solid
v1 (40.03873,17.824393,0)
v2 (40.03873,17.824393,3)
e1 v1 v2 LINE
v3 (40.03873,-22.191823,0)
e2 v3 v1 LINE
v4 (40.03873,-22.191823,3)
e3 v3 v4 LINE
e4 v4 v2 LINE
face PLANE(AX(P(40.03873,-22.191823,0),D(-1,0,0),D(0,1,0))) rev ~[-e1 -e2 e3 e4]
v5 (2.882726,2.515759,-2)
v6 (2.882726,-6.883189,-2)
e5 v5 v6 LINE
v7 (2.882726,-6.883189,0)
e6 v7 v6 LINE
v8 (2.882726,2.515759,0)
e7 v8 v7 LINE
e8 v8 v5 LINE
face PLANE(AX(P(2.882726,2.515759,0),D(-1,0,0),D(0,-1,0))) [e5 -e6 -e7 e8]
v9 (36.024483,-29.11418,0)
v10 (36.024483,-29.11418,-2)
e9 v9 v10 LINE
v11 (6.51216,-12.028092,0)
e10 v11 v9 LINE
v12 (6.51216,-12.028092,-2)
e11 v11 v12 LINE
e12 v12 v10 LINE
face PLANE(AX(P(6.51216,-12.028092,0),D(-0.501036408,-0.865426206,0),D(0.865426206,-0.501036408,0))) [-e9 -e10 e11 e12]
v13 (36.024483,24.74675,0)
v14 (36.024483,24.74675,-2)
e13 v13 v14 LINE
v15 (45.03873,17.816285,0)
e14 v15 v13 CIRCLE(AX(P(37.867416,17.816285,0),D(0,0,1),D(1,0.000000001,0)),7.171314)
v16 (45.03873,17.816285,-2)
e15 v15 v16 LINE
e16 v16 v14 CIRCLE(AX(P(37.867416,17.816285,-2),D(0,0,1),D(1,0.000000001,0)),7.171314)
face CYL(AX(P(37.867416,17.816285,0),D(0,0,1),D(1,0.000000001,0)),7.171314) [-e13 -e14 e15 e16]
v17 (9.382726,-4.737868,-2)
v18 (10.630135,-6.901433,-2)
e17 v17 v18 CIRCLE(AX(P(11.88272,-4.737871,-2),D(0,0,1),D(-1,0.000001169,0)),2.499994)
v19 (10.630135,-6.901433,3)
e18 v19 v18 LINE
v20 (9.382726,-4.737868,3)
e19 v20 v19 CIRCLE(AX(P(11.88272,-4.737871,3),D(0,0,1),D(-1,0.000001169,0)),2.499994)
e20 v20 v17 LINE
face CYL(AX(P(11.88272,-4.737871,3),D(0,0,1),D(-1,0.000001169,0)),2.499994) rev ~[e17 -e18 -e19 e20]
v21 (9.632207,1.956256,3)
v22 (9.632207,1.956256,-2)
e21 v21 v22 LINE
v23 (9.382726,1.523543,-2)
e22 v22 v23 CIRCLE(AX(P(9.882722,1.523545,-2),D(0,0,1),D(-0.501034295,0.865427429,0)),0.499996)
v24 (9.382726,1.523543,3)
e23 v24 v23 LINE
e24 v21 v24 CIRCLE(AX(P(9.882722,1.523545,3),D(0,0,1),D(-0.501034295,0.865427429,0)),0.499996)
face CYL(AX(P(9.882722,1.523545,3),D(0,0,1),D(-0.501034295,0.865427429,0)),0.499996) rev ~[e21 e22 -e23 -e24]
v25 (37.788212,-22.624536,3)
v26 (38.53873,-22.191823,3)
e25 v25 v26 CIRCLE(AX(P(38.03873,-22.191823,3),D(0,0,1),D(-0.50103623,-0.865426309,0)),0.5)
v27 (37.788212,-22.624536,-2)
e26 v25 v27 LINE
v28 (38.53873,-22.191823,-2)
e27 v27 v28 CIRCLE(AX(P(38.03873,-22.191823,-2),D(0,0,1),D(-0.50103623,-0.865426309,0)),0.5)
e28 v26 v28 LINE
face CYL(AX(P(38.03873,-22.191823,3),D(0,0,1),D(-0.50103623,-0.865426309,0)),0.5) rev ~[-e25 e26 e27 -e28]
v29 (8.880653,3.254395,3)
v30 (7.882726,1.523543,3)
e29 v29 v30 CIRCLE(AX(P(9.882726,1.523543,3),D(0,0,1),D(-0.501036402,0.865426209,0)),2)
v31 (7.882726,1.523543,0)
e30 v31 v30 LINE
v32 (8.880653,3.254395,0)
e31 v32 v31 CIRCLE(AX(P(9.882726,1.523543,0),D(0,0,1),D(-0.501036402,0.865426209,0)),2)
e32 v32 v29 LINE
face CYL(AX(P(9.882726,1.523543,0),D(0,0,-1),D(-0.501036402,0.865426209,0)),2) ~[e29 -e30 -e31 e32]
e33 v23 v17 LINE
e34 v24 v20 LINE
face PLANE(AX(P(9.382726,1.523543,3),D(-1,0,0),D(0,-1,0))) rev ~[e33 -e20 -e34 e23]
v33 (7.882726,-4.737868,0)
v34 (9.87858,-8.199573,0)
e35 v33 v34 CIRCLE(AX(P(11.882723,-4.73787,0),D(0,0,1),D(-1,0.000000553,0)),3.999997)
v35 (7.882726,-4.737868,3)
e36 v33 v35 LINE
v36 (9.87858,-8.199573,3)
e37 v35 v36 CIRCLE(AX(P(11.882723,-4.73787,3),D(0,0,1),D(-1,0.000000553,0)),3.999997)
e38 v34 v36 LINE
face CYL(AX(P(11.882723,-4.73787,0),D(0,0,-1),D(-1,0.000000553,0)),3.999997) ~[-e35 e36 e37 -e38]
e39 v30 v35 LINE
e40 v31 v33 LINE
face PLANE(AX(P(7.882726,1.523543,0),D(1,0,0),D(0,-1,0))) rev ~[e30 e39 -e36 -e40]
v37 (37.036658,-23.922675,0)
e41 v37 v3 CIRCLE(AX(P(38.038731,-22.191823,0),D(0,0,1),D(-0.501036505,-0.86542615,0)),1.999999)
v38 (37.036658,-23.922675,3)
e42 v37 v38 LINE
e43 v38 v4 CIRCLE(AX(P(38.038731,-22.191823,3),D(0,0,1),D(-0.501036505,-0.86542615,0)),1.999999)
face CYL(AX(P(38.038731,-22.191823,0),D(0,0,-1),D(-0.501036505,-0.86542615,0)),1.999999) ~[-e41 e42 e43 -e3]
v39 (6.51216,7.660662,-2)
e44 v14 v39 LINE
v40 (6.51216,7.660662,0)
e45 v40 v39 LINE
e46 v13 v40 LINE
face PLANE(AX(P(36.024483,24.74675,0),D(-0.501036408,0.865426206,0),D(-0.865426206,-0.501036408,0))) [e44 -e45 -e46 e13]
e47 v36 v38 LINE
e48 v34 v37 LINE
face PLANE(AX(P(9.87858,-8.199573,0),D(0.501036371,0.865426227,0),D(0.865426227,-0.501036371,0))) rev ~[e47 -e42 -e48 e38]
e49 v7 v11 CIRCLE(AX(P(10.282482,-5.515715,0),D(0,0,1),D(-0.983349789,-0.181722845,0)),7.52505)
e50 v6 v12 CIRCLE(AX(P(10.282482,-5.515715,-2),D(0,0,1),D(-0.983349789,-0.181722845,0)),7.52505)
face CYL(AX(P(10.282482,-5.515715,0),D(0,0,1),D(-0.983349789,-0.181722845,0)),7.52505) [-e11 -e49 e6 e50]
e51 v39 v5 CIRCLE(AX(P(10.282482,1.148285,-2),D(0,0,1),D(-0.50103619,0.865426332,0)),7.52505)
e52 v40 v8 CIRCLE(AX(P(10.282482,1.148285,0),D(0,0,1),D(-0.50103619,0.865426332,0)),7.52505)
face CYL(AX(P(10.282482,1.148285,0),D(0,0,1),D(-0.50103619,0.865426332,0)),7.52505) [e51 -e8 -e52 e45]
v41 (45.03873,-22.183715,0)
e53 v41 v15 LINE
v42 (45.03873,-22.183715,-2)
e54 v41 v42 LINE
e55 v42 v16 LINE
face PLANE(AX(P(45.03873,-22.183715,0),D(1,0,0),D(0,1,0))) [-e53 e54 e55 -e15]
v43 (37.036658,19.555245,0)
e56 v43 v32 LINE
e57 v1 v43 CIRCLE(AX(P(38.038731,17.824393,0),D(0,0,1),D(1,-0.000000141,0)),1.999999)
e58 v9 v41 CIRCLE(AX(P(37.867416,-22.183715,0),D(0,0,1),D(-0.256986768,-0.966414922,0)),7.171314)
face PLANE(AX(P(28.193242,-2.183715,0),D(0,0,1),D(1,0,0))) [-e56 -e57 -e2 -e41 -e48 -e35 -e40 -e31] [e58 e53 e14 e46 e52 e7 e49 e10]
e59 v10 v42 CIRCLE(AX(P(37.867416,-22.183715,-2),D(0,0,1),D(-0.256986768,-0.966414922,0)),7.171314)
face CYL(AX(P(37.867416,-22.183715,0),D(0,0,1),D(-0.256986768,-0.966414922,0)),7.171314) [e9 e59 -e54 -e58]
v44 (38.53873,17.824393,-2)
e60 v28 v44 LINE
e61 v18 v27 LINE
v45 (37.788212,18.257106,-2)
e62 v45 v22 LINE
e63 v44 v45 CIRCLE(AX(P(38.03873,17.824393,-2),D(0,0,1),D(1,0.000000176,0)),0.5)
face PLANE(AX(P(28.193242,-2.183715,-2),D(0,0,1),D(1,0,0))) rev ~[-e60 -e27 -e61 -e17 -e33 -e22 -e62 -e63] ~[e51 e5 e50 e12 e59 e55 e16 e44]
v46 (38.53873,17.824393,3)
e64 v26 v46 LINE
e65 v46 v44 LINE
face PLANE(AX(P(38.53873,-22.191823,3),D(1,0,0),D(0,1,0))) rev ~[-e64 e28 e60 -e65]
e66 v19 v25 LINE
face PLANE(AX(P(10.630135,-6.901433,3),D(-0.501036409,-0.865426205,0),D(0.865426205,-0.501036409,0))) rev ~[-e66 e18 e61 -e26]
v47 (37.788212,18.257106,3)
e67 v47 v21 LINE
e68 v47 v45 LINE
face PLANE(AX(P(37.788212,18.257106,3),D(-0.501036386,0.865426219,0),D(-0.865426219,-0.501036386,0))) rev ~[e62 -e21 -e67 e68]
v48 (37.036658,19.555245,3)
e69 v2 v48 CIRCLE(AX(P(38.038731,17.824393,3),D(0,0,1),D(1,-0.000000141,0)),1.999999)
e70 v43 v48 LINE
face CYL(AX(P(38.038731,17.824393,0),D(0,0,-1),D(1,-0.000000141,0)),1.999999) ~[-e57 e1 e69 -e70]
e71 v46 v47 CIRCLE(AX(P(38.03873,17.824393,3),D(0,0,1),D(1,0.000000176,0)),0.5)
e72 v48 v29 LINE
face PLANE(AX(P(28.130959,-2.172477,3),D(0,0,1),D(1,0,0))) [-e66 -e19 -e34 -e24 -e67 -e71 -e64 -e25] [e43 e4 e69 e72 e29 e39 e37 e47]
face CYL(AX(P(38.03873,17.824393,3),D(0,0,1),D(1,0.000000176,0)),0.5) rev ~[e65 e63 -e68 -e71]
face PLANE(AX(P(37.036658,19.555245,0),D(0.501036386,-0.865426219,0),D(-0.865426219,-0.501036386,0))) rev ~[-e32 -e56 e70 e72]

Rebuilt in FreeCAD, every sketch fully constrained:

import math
import FreeCAD as App
import Part
import Sketcher
from FreeCAD import Vector

doc = App.newDocument("Part")
body = doc.addObject("PartDesign::Body", "Body")

sketch1 = body.newObject("Sketcher::SketchObject", "Sketch")
sketch1.AttachmentSupport = (doc.getObject("XY_Plane"), [""])
sketch1.MapMode = "FlatFace"
sketch1.addGeometry([
    Part.ArcOfCircle(Part.Circle(Vector(11.882723, -4.73787, 0), Vector(0, 0, 1), 3.999997), math.radians(179.999968), math.radians(239.931428)),
    Part.LineSegment(Vector(9.87858, -8.199573, 0), Vector(37.036658, -23.922675, 0)),
    Part.ArcOfCircle(Part.Circle(Vector(38.038731, -22.191823, 0), Vector(0, 0, 1), 1.999999), math.radians(-120.068598), math.radians(0.000008)),
    Part.LineSegment(Vector(40.03873, -22.191823, 0), Vector(40.03873, 17.824393, 0)),
    Part.ArcOfCircle(Part.Circle(Vector(38.038731, 17.824393, 0), Vector(0, 0, 1), 1.999999), math.radians(-0.000008), math.radians(120.068598)),
    Part.LineSegment(Vector(37.036658, 19.555245, 0), Vector(8.880653, 3.254395, 0)),
    Part.ArcOfCircle(Part.Circle(Vector(9.882726, 1.523543, 0), Vector(0, 0, 1), 2), math.radians(120.068592), math.radians(179.999998)),
    Part.LineSegment(Vector(7.882726, 1.523543, 0), Vector(7.882726, -4.737868, 0)),
], False)
sketch1.addConstraint([
    Sketcher.Constraint("Coincident", 0, 2, 1, 1),
    Sketcher.Constraint("Coincident", 1, 2, 2, 1),
    Sketcher.Constraint("Coincident", 2, 2, 3, 1),
    Sketcher.Constraint("Coincident", 3, 2, 4, 1),
    Sketcher.Constraint("Coincident", 4, 2, 5, 1),
    Sketcher.Constraint("Coincident", 5, 2, 6, 1),
    Sketcher.Constraint("Coincident", 6, 2, 7, 1),
    Sketcher.Constraint("Coincident", 7, 2, 0, 1),
    Sketcher.Constraint("Vertical", 3),
    Sketcher.Constraint("Vertical", 7),
    Sketcher.Constraint("Radius", 2, 1.999999),
    Sketcher.Constraint("Radius", 4, 1.999999),
    Sketcher.Constraint("Radius", 6, 2.0),
    Sketcher.Constraint("DistanceY", 5, 2, 4, 3, 14.569998),
    Sketcher.Constraint("Radius", 0, 3.999997),
    Sketcher.Constraint("DistanceY", 7, 2, 7, 1, 6.261411),
    Sketcher.Constraint("DistanceY", 6, 2, 4, 2, 18.031702),
    Sketcher.Constraint("Distance", 1, 31.381159),
    Sketcher.Constraint("DistanceY", 3, 1, 3, 2, 40.016216),
    Sketcher.Constraint("DistanceY", 0, 3, -1, 1, 4.73787),
    Sketcher.Constraint("DistanceX", -1, 1, 2, 3, 38.038731),
    Sketcher.Constraint("DistanceX", -1, 1, 0, 2, 9.87858),
    Sketcher.Constraint("DistanceX", -1, 1, 1, 2, 37.036658),
    Sketcher.Constraint("DistanceX", -1, 1, 4, 2, 37.036658),
    Sketcher.Constraint("DistanceY", 6, 3, 4, 3, 16.30085),
    Sketcher.Constraint("DistanceY", 1, 2, 4, 3, 41.747068),
    Sketcher.Constraint("DistanceY", 2, 2, 0, 2, 13.99225),
    Sketcher.Constraint("Distance", 5, 32.534264),
])
pad1 = body.newObject("PartDesign::Pad", "Pad")
pad1.Profile = sketch1
pad1.Length = 3

sketch2 = body.newObject("Sketcher::SketchObject", "Sketch001")
sketch2.AttachmentSupport = (doc.getObject("XY_Plane"), [""])
sketch2.MapMode = "FlatFace"
sketch2.addGeometry([
    Part.LineSegment(Vector(7, -12, 0), Vector(36, -29, 0)),
    Part.ArcOfCircle(Part.Circle(Vector(38, -22, 0), Vector(0, 0, 1), 7), math.radians(-105), math.radians(0)),
    Part.LineSegment(Vector(45, -22, 0), Vector(45, 18, 0)),
    Part.ArcOfCircle(Part.Circle(Vector(38, 18, 0), Vector(0, 0, 1), 7), math.radians(0), math.radians(105)),
    Part.LineSegment(Vector(36, 25, 0), Vector(7, 8, 0)),
    Part.ArcOfCircle(Part.Circle(Vector(10, 1, 0), Vector(0, 0, 1), 8), math.radians(120), math.radians(170)),
    Part.LineSegment(Vector(3, 3, 0), Vector(3, -7, 0)),
    Part.ArcOfCircle(Part.Circle(Vector(10, -6, 0), Vector(0, 0, 1), 8), math.radians(-170), math.radians(-120)),
], False)
sketch2.addConstraint([
    Sketcher.Constraint("Coincident", 0, 2, 1, 1),
    Sketcher.Constraint("Tangent", 1, 2, 2, 1),
    Sketcher.Constraint("Tangent", 2, 2, 3, 1),
    Sketcher.Constraint("Coincident", 3, 2, 4, 1),
    Sketcher.Constraint("Tangent", 4, 2, 5, 1),
    Sketcher.Constraint("Coincident", 5, 2, 6, 1),
    Sketcher.Constraint("Coincident", 6, 2, 7, 1),
    Sketcher.Constraint("Tangent", 7, 2, 0, 1),
    Sketcher.Constraint("Vertical", 2),
    Sketcher.Constraint("Vertical", 6),
    Sketcher.Constraint("Equal", 1, 3),
    Sketcher.Constraint("Equal", 5, 7),
    Sketcher.Constraint("Vertical", 5, 3, 7, 3),
    Sketcher.Constraint("Vertical", 0, 2, 3, 2),
    Sketcher.Constraint("Vertical", 4, 2, 7, 2),
    Sketcher.Constraint("DistanceY", 2, 1, 2, 2, 40.0),
    Sketcher.Constraint("Radius", 5, 7.52505),
    Sketcher.Constraint("Radius", 1, 7.171314),
    Sketcher.Constraint("DistanceY", 5, 3, 3, 3, 16.668),
    Sketcher.Constraint("DistanceX", 7, 3, 0, 2, 25.742001),
    Sketcher.Constraint("DistanceY", 6, 2, 6, 1, 9.398948),
    Sketcher.Constraint("Distance", 0, 34.10149),
    Sketcher.Constraint("DistanceY", 0, 2, -1, 1, 29.11418),
    Sketcher.Constraint("DistanceX", -1, 1, 1, 2, 45.03873),
])
pad2 = body.newObject("PartDesign::Pad", "Pad001")
pad2.Profile = sketch2
pad2.Length = 2
pad2.Reversed = True

sketch3 = body.newObject("Sketcher::SketchObject", "Sketch002")
sketch3.AttachmentSupport = (doc.getObject("XY_Plane"), [""])
sketch3.MapMode = "FlatFace"
sketch3.AttachmentOffset = App.Placement(Vector(0, 0, 3), App.Rotation())
sketch3.addGeometry([
    Part.ArcOfCircle(Part.Circle(Vector(9.88, 1.52, 0), Vector(0, 0, 1), 0.5), math.radians(120), math.radians(180)),
    Part.LineSegment(Vector(9.38, 1.52, 0), Vector(9.38, -4.74, 0)),
    Part.ArcOfCircle(Part.Circle(Vector(11.88, -4.74, 0), Vector(0, 0, 1), 2.5), math.radians(180), math.radians(240)),
    Part.LineSegment(Vector(10.63, -6.9, 0), Vector(37.79, -22.62, 0)),
    Part.ArcOfCircle(Part.Circle(Vector(38.04, -22.19, 0), Vector(0, 0, 1), 0.5), math.radians(-120), math.radians(0)),
    Part.LineSegment(Vector(38.54, -22.19, 0), Vector(38.54, 17.82, 0)),
    Part.ArcOfCircle(Part.Circle(Vector(38.04, 17.82, 0), Vector(0, 0, 1), 0.5), math.radians(0), math.radians(120)),
    Part.LineSegment(Vector(37.79, 18.26, 0), Vector(9.63, 1.96, 0)),
], False)
sketch3.addConstraint([
    Sketcher.Constraint("Coincident", 0, 2, 1, 1),
    Sketcher.Constraint("Tangent", 1, 2, 2, 1),
    Sketcher.Constraint("Tangent", 2, 2, 3, 1),
    Sketcher.Constraint("Tangent", 3, 2, 4, 1),
    Sketcher.Constraint("Tangent", 4, 2, 5, 1),
    Sketcher.Constraint("Tangent", 5, 2, 6, 1),
    Sketcher.Constraint("Tangent", 6, 2, 7, 1),
    Sketcher.Constraint("Coincident", 7, 2, 0, 1),
    Sketcher.Constraint("Vertical", 1),
    Sketcher.Constraint("Vertical", 5),
    Sketcher.Constraint("Equal", 4, 6),
    Sketcher.Constraint("Vertical", 3, 2, 6, 2),
    Sketcher.Constraint("Radius", 4, 0.5),
    Sketcher.Constraint("Radius", 0, 0.499996),
    Sketcher.Constraint("Radius", 2, 2.499994),
    Sketcher.Constraint("DistanceY", 1, 2, 1, 1, 6.261411),
    Sketcher.Constraint("Distance", 3, 31.381159),
    Sketcher.Constraint("DistanceY", 5, 1, 5, 2, 40.016216),
    Sketcher.Constraint("DistanceX", -1, 1, 2, 3, 11.88272),
    Sketcher.Constraint("DistanceY", 2, 3, -1, 1, 4.737871),
    Sketcher.Constraint("DistanceX", -1, 1, 4, 3, 38.03873),
    Sketcher.Constraint("DistanceX", 0, 2, 7, 2, 0.249481),
])
pocket1 = body.newObject("PartDesign::Pocket", "Pocket")
pocket1.Profile = sketch3
pocket1.Type = "ThroughAll"

doc.recompute()
